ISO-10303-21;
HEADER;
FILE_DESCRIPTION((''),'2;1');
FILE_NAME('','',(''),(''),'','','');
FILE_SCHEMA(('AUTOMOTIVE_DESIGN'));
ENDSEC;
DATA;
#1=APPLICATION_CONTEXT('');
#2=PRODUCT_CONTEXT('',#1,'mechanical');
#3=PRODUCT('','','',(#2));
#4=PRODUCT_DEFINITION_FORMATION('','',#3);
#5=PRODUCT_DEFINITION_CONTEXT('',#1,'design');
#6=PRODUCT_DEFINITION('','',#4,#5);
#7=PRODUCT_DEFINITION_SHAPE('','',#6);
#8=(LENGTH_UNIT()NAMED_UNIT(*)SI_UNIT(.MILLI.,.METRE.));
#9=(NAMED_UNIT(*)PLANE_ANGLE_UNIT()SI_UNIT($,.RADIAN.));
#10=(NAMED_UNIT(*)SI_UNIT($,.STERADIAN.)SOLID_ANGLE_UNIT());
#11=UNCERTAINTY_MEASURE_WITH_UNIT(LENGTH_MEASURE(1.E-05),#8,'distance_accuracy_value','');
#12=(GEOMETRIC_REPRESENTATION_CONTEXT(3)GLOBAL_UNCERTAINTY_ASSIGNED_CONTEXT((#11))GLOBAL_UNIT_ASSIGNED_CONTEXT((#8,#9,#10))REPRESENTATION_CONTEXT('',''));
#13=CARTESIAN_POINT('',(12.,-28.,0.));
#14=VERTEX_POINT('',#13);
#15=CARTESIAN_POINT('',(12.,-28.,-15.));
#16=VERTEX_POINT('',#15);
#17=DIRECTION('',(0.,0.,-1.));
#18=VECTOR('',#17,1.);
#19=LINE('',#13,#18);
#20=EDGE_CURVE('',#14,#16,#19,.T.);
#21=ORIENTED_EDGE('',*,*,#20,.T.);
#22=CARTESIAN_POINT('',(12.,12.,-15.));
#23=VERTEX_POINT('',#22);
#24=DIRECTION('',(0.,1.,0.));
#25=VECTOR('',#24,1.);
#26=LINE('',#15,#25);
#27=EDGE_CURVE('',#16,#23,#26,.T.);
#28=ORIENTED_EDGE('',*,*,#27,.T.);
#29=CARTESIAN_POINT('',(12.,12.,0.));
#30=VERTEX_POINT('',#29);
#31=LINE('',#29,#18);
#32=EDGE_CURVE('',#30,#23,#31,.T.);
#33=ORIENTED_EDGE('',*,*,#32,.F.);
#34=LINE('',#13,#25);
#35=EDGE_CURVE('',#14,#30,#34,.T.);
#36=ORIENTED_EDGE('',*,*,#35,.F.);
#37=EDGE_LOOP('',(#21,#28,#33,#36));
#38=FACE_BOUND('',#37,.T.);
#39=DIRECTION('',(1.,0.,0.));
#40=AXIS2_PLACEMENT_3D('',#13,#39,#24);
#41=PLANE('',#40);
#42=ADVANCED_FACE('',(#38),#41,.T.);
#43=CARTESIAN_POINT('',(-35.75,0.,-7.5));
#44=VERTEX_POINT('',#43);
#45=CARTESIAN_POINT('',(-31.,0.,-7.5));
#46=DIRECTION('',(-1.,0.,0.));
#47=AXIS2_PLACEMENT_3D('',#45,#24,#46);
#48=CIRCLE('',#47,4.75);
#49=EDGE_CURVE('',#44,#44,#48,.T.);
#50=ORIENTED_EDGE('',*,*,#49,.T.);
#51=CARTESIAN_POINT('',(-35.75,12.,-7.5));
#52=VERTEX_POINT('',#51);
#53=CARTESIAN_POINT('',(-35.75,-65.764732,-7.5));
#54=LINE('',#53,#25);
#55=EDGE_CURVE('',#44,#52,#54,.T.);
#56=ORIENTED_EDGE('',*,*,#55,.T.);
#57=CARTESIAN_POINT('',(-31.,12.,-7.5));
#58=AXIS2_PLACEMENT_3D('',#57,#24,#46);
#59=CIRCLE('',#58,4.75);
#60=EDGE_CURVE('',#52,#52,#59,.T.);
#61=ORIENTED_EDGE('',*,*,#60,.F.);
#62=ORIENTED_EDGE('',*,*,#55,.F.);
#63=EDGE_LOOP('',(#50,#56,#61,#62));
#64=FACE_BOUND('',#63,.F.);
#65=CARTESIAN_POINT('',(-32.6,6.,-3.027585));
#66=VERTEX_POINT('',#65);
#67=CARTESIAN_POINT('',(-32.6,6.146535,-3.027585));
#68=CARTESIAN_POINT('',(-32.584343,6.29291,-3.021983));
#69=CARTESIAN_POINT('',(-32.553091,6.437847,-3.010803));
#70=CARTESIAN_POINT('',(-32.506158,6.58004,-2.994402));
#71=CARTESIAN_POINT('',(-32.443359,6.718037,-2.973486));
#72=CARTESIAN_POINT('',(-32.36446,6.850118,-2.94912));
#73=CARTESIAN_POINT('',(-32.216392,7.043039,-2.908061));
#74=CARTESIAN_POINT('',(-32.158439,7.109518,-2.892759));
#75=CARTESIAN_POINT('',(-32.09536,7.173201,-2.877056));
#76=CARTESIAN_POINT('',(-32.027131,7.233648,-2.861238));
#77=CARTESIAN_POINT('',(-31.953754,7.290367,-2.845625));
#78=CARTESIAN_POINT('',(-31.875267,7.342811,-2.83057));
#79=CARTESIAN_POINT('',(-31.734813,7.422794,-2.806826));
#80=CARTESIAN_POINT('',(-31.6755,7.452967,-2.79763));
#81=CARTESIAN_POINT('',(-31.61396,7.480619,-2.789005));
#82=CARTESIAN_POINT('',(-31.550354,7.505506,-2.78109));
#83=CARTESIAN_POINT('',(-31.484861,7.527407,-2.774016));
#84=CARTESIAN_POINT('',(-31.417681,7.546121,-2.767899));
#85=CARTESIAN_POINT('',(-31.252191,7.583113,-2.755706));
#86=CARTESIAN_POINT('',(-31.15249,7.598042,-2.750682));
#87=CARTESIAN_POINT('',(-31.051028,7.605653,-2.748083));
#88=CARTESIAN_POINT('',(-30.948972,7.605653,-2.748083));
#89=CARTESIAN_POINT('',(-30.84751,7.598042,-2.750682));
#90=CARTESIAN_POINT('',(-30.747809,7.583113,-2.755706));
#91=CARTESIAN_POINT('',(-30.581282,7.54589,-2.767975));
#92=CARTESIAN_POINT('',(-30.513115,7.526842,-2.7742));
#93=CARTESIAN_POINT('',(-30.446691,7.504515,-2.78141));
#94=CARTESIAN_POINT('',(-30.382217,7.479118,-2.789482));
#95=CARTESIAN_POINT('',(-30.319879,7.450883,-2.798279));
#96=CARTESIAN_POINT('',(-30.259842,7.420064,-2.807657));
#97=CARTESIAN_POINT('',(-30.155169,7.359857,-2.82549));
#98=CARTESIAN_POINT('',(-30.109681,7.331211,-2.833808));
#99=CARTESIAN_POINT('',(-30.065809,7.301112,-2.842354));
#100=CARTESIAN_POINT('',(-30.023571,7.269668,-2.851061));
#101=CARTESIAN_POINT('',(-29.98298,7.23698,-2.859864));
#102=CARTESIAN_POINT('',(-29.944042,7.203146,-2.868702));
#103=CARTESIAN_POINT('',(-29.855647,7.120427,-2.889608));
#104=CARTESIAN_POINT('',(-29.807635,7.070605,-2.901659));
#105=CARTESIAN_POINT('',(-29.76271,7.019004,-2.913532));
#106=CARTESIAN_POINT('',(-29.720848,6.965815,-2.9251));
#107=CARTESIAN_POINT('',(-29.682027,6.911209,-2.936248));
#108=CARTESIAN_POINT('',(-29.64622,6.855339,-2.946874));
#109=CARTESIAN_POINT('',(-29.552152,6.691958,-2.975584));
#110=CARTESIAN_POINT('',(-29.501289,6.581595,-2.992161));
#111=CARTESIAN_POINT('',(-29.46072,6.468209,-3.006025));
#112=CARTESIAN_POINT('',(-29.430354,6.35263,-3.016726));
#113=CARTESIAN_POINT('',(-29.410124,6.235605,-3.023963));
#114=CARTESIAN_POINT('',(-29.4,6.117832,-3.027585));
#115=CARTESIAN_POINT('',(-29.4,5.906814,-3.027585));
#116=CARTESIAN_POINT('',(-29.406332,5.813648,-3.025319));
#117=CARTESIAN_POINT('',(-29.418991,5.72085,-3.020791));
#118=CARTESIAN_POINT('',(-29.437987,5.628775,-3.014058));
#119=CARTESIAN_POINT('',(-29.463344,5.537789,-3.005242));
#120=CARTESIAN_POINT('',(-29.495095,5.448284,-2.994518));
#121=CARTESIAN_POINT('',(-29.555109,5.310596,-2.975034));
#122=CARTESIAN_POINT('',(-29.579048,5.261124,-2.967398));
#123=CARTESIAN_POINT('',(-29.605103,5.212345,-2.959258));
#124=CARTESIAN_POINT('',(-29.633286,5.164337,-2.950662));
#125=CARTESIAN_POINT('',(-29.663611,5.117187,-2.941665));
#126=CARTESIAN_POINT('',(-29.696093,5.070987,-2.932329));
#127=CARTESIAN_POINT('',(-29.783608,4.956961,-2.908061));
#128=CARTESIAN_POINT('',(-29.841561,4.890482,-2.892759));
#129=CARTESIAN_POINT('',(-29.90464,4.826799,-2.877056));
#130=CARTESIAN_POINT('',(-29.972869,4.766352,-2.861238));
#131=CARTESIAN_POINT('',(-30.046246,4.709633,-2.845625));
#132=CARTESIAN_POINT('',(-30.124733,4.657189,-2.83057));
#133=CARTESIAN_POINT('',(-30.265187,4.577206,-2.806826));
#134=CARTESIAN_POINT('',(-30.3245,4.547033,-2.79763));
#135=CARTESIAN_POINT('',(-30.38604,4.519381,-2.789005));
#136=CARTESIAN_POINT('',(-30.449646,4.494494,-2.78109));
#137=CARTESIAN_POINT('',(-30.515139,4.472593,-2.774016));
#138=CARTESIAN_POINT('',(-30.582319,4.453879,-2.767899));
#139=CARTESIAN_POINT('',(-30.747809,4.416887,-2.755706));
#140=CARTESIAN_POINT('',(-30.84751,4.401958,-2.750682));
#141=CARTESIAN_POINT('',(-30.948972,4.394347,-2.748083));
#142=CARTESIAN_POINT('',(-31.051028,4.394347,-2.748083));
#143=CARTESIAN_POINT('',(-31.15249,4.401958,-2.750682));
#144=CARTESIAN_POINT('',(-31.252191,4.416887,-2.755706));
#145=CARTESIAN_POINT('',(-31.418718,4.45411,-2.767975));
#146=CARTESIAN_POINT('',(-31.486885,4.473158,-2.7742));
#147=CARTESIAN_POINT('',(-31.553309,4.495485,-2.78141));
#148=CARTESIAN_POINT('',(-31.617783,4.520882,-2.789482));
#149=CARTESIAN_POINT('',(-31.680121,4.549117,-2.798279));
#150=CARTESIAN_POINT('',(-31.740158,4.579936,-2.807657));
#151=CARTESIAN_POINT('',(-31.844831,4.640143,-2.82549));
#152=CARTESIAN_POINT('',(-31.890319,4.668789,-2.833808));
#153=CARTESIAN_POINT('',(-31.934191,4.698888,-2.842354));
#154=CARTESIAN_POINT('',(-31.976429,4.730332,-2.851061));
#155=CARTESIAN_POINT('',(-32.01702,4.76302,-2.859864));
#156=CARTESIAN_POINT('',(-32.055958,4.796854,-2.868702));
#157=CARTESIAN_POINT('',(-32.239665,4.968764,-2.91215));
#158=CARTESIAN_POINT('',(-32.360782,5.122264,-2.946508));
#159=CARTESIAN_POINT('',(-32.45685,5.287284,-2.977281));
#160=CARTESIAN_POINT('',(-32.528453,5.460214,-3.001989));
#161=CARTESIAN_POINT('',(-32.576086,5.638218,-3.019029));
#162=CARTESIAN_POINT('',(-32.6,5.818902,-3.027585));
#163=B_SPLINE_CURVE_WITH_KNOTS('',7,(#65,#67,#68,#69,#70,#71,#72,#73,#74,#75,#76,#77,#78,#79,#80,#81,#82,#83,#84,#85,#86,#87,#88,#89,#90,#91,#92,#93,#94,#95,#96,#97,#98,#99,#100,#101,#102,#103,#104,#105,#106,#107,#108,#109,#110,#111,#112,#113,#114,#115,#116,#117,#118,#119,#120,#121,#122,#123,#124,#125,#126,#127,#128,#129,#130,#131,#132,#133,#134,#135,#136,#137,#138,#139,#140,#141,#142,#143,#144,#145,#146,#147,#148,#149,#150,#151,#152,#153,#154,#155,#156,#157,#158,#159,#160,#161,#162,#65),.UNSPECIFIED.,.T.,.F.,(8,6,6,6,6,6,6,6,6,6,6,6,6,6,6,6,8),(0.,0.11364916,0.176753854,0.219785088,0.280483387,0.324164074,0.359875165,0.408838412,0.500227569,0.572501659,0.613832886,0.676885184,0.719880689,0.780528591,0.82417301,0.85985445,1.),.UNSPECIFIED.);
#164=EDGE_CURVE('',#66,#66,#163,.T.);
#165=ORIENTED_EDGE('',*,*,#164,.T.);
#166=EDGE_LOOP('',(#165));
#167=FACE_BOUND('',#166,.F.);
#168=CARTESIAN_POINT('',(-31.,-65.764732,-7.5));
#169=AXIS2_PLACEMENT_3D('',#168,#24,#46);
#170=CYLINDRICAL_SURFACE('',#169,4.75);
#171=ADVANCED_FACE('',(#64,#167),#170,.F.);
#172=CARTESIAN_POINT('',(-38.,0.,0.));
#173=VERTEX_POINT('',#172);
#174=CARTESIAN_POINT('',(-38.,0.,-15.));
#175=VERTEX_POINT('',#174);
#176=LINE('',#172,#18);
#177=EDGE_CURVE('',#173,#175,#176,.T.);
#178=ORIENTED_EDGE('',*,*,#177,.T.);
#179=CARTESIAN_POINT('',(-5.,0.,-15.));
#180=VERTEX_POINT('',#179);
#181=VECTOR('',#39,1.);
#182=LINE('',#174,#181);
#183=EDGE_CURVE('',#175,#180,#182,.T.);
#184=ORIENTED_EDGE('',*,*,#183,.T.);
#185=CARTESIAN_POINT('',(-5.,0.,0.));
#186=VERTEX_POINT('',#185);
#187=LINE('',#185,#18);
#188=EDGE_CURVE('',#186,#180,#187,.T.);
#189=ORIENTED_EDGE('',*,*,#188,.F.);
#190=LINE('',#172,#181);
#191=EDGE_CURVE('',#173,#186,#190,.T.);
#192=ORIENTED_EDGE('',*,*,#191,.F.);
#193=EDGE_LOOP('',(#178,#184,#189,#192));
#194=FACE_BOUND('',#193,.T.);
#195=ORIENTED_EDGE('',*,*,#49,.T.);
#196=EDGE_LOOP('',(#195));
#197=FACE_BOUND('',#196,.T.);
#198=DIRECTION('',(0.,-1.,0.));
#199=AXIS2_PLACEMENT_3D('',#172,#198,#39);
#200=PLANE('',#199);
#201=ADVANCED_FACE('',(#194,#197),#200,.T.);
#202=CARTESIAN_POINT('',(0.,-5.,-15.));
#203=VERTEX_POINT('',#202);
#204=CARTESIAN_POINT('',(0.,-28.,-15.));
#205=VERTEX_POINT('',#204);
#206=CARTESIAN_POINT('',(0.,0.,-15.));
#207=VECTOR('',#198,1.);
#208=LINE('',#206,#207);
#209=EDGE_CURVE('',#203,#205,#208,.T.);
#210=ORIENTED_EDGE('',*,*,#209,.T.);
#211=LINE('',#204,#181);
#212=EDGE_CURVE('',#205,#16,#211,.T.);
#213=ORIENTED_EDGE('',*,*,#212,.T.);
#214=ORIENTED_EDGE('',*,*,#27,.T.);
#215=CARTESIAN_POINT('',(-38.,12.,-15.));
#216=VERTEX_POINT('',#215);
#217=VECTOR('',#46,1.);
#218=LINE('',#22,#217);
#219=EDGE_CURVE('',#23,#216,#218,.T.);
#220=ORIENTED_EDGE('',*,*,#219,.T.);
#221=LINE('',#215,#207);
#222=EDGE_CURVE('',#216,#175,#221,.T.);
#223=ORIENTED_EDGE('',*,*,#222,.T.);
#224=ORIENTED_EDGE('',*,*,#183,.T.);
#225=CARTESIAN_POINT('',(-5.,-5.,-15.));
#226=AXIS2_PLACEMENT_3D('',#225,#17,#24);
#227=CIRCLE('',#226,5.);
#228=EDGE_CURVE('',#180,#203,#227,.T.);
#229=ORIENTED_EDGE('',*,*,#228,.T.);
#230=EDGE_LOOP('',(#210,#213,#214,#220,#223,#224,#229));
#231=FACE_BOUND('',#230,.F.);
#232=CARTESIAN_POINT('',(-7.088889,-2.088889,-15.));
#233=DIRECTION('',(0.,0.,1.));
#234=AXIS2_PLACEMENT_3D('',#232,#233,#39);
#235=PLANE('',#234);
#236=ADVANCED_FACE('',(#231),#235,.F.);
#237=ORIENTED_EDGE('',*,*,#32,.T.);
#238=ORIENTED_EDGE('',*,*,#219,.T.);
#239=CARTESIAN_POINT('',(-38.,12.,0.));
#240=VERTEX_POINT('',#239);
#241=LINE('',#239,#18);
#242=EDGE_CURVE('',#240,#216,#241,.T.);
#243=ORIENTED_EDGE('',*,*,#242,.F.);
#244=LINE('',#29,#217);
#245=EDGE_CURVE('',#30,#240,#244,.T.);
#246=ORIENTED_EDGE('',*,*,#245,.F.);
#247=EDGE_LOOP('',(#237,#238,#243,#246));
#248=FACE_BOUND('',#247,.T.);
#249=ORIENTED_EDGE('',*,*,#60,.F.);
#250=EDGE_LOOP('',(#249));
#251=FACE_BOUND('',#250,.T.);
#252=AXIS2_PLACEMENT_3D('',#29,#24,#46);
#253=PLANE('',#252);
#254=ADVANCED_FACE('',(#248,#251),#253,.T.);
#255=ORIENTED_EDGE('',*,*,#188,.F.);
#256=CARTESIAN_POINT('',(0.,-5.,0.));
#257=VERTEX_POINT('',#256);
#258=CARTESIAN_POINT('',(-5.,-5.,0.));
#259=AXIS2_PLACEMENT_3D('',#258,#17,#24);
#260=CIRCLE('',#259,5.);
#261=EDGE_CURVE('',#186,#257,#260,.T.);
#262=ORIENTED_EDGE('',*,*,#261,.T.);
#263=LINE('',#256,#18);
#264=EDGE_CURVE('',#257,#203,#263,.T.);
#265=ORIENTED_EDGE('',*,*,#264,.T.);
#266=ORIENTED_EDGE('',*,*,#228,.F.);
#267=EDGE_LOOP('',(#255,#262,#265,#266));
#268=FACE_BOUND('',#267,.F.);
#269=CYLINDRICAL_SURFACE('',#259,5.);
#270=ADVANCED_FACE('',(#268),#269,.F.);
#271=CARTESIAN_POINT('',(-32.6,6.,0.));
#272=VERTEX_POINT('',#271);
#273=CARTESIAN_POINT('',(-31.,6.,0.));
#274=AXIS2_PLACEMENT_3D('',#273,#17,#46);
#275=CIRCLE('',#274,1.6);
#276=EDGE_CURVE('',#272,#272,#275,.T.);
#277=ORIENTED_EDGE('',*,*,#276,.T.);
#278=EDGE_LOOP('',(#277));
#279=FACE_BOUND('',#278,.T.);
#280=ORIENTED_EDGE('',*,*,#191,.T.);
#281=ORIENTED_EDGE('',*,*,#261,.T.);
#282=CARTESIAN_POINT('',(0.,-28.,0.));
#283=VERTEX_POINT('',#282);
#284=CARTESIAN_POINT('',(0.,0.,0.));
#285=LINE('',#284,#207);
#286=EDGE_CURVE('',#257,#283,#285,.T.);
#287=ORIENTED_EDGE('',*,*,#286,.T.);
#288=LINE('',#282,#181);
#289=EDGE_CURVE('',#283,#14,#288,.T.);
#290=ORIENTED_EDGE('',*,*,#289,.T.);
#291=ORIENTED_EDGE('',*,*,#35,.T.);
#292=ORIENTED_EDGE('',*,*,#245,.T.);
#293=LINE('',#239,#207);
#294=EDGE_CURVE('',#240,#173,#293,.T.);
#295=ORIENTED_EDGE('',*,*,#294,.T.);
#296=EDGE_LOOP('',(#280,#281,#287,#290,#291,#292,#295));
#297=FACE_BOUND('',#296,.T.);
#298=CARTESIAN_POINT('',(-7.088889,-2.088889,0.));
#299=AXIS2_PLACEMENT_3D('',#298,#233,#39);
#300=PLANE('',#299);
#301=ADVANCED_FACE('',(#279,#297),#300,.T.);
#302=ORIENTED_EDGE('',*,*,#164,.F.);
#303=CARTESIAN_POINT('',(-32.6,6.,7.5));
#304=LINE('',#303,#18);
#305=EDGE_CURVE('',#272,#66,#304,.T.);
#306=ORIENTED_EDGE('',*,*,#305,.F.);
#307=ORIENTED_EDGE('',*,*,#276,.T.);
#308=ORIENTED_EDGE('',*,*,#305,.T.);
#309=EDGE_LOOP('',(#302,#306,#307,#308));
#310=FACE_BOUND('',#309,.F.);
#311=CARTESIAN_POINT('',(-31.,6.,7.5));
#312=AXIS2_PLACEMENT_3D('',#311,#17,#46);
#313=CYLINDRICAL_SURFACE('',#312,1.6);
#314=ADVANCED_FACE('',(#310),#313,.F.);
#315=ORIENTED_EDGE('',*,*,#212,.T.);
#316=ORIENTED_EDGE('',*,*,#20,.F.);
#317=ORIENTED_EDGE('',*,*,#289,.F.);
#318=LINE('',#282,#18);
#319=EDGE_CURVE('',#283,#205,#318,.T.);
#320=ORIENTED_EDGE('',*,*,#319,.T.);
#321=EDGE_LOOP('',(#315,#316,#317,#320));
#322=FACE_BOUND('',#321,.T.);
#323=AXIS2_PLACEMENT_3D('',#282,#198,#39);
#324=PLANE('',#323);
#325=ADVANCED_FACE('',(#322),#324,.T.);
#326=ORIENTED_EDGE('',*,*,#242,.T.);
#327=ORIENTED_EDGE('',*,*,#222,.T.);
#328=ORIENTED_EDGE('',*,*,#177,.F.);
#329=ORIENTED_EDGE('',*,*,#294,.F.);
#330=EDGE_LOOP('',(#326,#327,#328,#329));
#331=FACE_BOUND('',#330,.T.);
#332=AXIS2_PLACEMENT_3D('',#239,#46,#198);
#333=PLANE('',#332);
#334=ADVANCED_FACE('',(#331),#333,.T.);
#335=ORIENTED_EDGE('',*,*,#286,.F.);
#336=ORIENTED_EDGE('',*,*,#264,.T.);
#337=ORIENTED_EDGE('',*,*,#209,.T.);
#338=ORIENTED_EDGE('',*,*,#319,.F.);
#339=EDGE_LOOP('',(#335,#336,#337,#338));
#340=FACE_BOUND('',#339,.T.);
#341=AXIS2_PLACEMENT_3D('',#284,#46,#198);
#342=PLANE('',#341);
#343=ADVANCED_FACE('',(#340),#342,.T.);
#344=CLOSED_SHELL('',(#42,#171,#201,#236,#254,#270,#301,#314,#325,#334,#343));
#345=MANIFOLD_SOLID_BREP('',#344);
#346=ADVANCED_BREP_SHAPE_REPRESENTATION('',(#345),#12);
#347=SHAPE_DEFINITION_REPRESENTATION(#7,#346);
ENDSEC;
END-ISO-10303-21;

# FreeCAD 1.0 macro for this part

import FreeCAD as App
import Part
import Sketcher
Q = App.Units.Quantity


def edges_at(feature, points):
    """Names of the edges that pass closest to the given points."""
    edges = feature.Shape.Edges
    near = lambda p: min(range(len(edges)), key=lambda i: edges[i].distToShape(Part.Vertex(*p))[0])
    return sorted({f"Edge{near(p) + 1}" for p in points})

doc = App.newDocument("Part")
body = doc.addObject("PartDesign::Body", "Body")

# Sketch on XY plane
sketch1 = body.newObject("Sketcher::SketchObject", "Sketch")
sketch1.AttachmentSupport = (doc.getObject("XY_Plane"), [""])
sketch1.MapMode = "FlatFace"
sketch1.addGeometry([
    Part.LineSegment(App.Vector(-38, 0, 0), App.Vector(0, 0, 0)),  # 0
    Part.LineSegment(App.Vector(0, 0, 0), App.Vector(0, -28, 0)),  # 1
    Part.LineSegment(App.Vector(0, -28, 0), App.Vector(12, -28, 0)),  # 2
    Part.LineSegment(App.Vector(12, -28, 0), App.Vector(12, 12, 0)),  # 3
    Part.LineSegment(App.Vector(12, 12, 0), App.Vector(-38, 12, 0)),  # 4
    Part.LineSegment(App.Vector(-38, 12, 0), App.Vector(-38, 0, 0)),  # 5
], False)
sketch1.addConstraint([
    Sketcher.Constraint("Coincident", 0, 2, 1, 1),
    Sketcher.Constraint("Coincident", 1, 2, 2, 1),
    Sketcher.Constraint("Coincident", 2, 2, 3, 1),
    Sketcher.Constraint("Coincident", 3, 2, 4, 1),
    Sketcher.Constraint("Coincident", 4, 2, 5, 1),
    Sketcher.Constraint("Coincident", 5, 2, 0, 1),
    Sketcher.Constraint("Horizontal", 0),
    Sketcher.Constraint("Vertical", 1),
    Sketcher.Constraint("Horizontal", 2),
    Sketcher.Constraint("Vertical", 3),
    Sketcher.Constraint("Horizontal", 4),
    Sketcher.Constraint("Vertical", 5),
    Sketcher.Constraint("Coincident", 0, 2, -1, 1),
    Sketcher.Constraint("Equal", 2, 5),
    Sketcher.Constraint("DistanceX", 0, 1, 0, 2, Q("38 mm")),
    Sketcher.Constraint("DistanceX", 2, 1, 2, 2, Q("12 mm")),
    Sketcher.Constraint("DistanceY", 1, 2, 1, 1, Q("28 mm")),
])
pad1 = body.newObject("PartDesign::Pad", "Pad")
pad1.Profile = sketch1
pad1.Length = 15
pad1.Reversed = True

# Sketch on XZ plane
sketch2 = body.newObject("Sketcher::SketchObject", "Sketch001")
sketch2.AttachmentSupport = (doc.getObject("XZ_Plane"), [""])
sketch2.MapMode = "FlatFace"
sketch2.addGeometry(Part.Circle(App.Vector(-31, -7.5, 0), App.Vector(0, 0, 1), 4.8), False)
sketch2.addConstraint([
    Sketcher.Constraint("Diameter", 0, Q("9.5 mm")),
    Sketcher.Constraint("DistanceX", 0, 3, -1, 1, Q("31 mm")),
    Sketcher.Constraint("DistanceY", 0, 3, -1, 1, Q("7.5 mm")),
])
doc.recompute()
hole = body.newObject("PartDesign::Hole", "Hole")
hole.Profile = sketch2
hole.ThreadType = "None"
hole.Diameter = 9.5
hole.DepthType = "ThroughAll"

# Sketch on XY plane
sketch3 = body.newObject("Sketcher::SketchObject", "Sketch002")
sketch3.AttachmentSupport = (doc.getObject("XY_Plane"), [""])
sketch3.MapMode = "FlatFace"
sketch3.addGeometry(Part.Circle(App.Vector(-31, 6, 0), App.Vector(0, 0, 1), 1.6), False)
sketch3.addConstraint([
    Sketcher.Constraint("Diameter", 0, Q("3.2 mm")),
    Sketcher.Constraint("DistanceX", 0, 3, -1, 1, Q("31 mm")),
    Sketcher.Constraint("DistanceY", -1, 1, 0, 3, Q("6 mm")),
])
doc.recompute()
hole2 = body.newObject("PartDesign::Hole", "Hole001")
hole2.Profile = sketch3
hole2.ThreadType = "None"
hole2.Diameter = 3.2
hole2.DepthType = "Dimension"
hole2.Depth = 7.5
hole2.DrillPoint = "Angled"
hole2.DrillPointAngle = 118
doc.recompute()

fillet = body.newObject("PartDesign::Fillet", "Fillet")
fillet.Base = (hole2, edges_at(hole2, [(0, 0, -7.5)]))
fillet.Radius = 5

doc.recompute()
